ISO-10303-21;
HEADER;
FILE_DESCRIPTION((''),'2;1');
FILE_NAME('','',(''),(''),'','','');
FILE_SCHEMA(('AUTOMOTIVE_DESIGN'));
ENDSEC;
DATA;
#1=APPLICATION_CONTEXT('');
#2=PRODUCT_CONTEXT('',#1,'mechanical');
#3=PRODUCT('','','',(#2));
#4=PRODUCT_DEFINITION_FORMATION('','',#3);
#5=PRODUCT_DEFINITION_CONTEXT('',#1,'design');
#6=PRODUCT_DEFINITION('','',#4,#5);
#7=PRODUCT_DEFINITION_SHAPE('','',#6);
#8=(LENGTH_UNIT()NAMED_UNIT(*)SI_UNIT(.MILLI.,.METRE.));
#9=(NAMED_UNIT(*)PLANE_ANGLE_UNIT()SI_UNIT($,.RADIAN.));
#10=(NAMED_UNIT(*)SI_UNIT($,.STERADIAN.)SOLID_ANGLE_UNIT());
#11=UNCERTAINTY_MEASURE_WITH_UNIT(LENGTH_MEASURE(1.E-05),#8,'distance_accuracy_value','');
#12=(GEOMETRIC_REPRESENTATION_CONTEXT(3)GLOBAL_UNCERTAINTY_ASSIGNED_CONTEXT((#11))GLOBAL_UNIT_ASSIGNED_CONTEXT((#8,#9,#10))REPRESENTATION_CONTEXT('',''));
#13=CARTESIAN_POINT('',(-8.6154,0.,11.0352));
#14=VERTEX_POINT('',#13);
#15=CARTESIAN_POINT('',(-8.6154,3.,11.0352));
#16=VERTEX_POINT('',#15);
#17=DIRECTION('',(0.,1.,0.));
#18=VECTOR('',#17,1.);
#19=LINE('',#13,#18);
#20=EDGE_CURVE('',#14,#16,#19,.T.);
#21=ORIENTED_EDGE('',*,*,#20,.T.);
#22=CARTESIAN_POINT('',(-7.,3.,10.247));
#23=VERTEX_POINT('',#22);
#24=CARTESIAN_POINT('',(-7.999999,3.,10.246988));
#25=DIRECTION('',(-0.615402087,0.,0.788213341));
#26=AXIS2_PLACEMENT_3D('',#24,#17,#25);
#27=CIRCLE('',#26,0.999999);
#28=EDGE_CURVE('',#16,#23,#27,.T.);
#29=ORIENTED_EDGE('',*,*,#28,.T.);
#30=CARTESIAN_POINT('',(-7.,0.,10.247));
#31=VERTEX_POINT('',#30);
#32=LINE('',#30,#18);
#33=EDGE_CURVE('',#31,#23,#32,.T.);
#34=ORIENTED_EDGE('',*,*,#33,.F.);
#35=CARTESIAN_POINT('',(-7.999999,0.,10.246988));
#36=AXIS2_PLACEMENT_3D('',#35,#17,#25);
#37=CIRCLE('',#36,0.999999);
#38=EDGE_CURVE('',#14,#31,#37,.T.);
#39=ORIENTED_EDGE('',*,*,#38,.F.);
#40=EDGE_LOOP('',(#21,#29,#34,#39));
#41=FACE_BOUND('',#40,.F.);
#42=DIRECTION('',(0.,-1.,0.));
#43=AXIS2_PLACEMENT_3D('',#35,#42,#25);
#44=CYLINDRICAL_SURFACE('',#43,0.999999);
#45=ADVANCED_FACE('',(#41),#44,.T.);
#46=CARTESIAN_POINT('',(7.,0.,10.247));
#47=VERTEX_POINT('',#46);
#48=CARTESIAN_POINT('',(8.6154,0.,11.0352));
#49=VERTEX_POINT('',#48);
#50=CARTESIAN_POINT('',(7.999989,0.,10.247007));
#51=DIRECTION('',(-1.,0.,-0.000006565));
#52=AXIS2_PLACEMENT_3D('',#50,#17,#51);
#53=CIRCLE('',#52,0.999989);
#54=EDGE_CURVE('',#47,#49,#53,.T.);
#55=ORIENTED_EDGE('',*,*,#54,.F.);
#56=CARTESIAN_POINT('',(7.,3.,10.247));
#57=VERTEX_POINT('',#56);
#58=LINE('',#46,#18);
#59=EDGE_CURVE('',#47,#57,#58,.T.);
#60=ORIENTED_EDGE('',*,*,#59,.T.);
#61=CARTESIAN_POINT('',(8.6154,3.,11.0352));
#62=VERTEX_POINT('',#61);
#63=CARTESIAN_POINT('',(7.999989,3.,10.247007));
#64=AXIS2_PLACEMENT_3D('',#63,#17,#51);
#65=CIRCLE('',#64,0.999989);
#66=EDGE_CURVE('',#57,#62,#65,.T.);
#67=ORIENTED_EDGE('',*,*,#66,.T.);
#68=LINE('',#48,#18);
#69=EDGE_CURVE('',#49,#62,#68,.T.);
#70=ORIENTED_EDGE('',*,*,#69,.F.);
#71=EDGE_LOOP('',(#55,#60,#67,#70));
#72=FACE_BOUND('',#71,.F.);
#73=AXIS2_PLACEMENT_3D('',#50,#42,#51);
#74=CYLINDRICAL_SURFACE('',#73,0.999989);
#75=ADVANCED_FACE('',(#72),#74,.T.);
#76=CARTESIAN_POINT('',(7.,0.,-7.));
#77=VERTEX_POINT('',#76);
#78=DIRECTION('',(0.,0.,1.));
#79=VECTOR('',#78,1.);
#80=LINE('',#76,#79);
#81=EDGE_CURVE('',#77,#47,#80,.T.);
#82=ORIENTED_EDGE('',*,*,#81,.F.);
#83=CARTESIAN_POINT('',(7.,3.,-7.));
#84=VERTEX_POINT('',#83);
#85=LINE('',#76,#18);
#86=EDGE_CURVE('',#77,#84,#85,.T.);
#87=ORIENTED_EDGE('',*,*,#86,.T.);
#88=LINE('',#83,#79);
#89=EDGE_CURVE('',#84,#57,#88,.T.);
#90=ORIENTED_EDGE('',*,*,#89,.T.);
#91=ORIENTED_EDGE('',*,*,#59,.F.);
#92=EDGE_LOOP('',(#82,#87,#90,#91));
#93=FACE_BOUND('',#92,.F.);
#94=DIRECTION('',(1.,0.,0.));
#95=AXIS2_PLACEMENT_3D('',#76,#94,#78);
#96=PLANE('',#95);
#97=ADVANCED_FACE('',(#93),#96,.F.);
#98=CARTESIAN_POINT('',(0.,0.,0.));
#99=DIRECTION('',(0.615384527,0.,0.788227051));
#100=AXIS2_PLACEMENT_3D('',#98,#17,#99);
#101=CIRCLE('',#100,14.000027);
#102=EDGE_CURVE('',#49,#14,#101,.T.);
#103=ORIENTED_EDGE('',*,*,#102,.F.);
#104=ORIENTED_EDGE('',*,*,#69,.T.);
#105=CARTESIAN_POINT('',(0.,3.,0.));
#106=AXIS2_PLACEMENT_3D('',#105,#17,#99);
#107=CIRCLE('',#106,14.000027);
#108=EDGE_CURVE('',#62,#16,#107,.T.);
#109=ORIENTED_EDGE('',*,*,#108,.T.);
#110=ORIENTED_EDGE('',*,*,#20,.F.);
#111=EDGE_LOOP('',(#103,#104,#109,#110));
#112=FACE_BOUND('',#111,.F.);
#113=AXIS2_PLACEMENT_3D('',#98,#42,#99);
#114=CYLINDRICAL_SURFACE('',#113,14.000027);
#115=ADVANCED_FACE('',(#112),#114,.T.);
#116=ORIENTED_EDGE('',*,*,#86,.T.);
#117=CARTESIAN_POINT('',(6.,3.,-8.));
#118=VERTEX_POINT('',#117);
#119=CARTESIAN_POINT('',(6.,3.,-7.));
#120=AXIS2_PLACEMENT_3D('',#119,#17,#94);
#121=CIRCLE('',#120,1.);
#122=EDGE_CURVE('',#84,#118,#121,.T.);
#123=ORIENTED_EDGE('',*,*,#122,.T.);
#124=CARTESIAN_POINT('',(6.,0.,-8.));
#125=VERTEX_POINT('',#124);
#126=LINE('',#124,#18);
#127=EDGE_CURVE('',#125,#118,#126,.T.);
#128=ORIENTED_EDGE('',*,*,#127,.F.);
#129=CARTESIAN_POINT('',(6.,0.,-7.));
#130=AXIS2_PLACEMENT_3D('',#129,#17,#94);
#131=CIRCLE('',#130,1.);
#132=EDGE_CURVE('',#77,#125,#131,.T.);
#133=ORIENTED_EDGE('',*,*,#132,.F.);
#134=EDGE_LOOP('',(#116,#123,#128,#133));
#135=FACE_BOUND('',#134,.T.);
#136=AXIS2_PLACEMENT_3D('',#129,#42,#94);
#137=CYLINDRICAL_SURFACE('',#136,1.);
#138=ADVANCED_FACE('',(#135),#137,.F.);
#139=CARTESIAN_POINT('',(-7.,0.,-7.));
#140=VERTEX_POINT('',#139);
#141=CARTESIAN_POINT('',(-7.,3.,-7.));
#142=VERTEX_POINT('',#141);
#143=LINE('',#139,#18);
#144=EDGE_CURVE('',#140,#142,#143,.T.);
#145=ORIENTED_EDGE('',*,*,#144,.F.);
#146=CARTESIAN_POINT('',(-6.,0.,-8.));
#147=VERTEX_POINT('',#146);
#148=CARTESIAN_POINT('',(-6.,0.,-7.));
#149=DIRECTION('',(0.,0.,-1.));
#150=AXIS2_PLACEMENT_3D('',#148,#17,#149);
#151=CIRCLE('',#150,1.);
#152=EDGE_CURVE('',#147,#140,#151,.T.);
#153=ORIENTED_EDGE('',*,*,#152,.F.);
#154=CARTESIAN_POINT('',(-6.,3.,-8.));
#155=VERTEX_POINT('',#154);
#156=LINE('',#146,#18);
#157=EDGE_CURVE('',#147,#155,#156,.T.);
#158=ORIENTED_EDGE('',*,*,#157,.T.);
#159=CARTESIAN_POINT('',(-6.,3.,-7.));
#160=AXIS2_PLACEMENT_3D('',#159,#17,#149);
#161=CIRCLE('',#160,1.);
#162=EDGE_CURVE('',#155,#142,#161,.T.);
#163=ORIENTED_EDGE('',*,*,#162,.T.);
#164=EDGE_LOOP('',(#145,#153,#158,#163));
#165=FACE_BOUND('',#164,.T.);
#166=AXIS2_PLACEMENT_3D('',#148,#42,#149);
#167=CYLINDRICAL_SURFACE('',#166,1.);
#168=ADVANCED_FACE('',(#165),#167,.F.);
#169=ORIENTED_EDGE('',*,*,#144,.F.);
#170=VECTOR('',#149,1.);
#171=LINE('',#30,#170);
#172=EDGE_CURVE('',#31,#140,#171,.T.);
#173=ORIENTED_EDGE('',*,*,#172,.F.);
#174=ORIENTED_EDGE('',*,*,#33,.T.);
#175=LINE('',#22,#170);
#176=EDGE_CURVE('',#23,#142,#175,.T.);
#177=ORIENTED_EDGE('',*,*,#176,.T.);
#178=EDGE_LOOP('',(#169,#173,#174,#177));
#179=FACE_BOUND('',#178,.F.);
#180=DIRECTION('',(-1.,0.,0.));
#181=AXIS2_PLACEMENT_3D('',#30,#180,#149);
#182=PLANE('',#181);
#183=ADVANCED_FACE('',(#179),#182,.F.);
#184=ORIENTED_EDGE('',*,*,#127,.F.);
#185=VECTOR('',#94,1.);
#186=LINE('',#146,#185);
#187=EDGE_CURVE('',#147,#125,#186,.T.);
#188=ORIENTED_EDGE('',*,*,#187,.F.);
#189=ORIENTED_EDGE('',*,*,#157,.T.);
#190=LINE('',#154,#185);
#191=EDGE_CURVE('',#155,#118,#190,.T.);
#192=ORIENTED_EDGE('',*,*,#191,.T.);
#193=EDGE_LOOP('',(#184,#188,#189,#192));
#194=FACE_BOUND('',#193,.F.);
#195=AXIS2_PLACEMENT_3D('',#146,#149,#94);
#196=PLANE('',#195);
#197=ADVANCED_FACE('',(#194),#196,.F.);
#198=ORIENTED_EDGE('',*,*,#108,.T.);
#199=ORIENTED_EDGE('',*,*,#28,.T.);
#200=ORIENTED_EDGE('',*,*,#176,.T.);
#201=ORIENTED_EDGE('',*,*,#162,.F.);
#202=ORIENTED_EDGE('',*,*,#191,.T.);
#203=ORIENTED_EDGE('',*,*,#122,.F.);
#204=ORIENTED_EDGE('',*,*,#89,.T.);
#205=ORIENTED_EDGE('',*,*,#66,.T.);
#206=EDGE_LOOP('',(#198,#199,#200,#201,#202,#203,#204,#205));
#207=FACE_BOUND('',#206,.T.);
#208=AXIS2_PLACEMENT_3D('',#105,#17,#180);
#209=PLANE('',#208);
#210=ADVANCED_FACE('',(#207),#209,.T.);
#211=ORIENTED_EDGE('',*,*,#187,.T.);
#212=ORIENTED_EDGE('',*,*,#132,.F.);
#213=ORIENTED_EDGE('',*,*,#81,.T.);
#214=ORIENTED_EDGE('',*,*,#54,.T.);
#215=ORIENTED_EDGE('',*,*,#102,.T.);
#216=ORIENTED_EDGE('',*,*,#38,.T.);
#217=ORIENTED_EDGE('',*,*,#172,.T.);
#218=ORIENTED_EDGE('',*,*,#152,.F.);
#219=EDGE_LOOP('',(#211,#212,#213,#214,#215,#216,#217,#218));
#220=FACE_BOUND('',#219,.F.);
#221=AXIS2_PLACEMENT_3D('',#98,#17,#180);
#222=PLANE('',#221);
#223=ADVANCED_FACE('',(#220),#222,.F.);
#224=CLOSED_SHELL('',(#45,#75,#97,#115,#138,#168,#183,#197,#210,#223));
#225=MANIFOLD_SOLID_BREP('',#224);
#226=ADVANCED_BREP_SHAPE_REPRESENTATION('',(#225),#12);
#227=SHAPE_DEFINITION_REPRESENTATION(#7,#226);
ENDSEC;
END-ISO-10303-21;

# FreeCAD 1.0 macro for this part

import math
import FreeCAD as App
import Part
import Sketcher
from FreeCAD import Vector

doc = App.newDocument("Part")
body = doc.addObject("PartDesign::Body", "Body")

# Sketch on XZ plane
sketch1 = body.newObject("Sketcher::SketchObject", "Sketch")
sketch1.AttachmentSupport = (doc.getObject("XZ_Plane"), [""])
sketch1.MapMode = "FlatFace"
sketch1.addGeometry([
    Part.ArcOfCircle(Part.Circle(Vector(8, 10.2, 0), Vector(0, 0, 1), 1), math.radians(52), math.radians(180)),  # 0
    Part.ArcOfCircle(Part.Circle(Vector(0, 0, 0), Vector(0, 0, 1), 14), math.radians(128), math.radians(412)),  # 1
    Part.ArcOfCircle(Part.Circle(Vector(-8, 10.2, 0), Vector(0, 0, 1), 1), math.radians(0), math.radians(128)),  # 2
    Part.LineSegment(Vector(-7, 10.2, 0), Vector(-7, -7, 0)),  # 3
    Part.ArcOfCircle(Part.Circle(Vector(-6, -7, 0), Vector(0, 0, 1), 1), math.radians(180), math.radians(270)),  # 4
    Part.LineSegment(Vector(-6, -8, 0), Vector(6, -8, 0)),  # 5
    Part.ArcOfCircle(Part.Circle(Vector(6, -7, 0), Vector(0, 0, 1), 1), math.radians(-90), math.radians(0)),  # 6
    Part.LineSegment(Vector(7, -7, 0), Vector(7, 10.2, 0)),  # 7
], False)
sketch1.addConstraint([
    Sketcher.Constraint("Tangent", 0, 1, 1, 2),
    Sketcher.Constraint("Tangent", 1, 1, 2, 2),
    Sketcher.Constraint("Tangent", 2, 1, 3, 1),
    Sketcher.Constraint("Tangent", 3, 2, 4, 1),
    Sketcher.Constraint("Tangent", 4, 2, 5, 1),
    Sketcher.Constraint("Tangent", 5, 2, 6, 1),
    Sketcher.Constraint("Tangent", 6, 2, 7, 1),
    Sketcher.Constraint("Tangent", 7, 2, 0, 2),
    Sketcher.Constraint("Vertical", 3),
    Sketcher.Constraint("Horizontal", 5),
    Sketcher.Constraint("Vertical", 7),
    Sketcher.Constraint("Coincident", 1, 3, -1, 1),
    Sketcher.Constraint("Equal", 0, 2),
    Sketcher.Constraint("Equal", 2, 4),
    Sketcher.Constraint("Equal", 4, 6),
    Sketcher.Constraint("Horizontal", 0, 3, 2, 3),
    Sketcher.Constraint("Radius", 0, 1.0),
    Sketcher.Constraint("Radius", 1, 14.0),
    Sketcher.Constraint("DistanceX", -1, 1, 0, 3, 8.0),
    Sketcher.Constraint("DistanceY", 4, 2, -1, 1, 8.0),
])
pad1 = body.newObject("PartDesign::Pad", "Pad")
pad1.Profile = sketch1
pad1.Length = 3
pad1.Reversed = True

doc.recompute()
